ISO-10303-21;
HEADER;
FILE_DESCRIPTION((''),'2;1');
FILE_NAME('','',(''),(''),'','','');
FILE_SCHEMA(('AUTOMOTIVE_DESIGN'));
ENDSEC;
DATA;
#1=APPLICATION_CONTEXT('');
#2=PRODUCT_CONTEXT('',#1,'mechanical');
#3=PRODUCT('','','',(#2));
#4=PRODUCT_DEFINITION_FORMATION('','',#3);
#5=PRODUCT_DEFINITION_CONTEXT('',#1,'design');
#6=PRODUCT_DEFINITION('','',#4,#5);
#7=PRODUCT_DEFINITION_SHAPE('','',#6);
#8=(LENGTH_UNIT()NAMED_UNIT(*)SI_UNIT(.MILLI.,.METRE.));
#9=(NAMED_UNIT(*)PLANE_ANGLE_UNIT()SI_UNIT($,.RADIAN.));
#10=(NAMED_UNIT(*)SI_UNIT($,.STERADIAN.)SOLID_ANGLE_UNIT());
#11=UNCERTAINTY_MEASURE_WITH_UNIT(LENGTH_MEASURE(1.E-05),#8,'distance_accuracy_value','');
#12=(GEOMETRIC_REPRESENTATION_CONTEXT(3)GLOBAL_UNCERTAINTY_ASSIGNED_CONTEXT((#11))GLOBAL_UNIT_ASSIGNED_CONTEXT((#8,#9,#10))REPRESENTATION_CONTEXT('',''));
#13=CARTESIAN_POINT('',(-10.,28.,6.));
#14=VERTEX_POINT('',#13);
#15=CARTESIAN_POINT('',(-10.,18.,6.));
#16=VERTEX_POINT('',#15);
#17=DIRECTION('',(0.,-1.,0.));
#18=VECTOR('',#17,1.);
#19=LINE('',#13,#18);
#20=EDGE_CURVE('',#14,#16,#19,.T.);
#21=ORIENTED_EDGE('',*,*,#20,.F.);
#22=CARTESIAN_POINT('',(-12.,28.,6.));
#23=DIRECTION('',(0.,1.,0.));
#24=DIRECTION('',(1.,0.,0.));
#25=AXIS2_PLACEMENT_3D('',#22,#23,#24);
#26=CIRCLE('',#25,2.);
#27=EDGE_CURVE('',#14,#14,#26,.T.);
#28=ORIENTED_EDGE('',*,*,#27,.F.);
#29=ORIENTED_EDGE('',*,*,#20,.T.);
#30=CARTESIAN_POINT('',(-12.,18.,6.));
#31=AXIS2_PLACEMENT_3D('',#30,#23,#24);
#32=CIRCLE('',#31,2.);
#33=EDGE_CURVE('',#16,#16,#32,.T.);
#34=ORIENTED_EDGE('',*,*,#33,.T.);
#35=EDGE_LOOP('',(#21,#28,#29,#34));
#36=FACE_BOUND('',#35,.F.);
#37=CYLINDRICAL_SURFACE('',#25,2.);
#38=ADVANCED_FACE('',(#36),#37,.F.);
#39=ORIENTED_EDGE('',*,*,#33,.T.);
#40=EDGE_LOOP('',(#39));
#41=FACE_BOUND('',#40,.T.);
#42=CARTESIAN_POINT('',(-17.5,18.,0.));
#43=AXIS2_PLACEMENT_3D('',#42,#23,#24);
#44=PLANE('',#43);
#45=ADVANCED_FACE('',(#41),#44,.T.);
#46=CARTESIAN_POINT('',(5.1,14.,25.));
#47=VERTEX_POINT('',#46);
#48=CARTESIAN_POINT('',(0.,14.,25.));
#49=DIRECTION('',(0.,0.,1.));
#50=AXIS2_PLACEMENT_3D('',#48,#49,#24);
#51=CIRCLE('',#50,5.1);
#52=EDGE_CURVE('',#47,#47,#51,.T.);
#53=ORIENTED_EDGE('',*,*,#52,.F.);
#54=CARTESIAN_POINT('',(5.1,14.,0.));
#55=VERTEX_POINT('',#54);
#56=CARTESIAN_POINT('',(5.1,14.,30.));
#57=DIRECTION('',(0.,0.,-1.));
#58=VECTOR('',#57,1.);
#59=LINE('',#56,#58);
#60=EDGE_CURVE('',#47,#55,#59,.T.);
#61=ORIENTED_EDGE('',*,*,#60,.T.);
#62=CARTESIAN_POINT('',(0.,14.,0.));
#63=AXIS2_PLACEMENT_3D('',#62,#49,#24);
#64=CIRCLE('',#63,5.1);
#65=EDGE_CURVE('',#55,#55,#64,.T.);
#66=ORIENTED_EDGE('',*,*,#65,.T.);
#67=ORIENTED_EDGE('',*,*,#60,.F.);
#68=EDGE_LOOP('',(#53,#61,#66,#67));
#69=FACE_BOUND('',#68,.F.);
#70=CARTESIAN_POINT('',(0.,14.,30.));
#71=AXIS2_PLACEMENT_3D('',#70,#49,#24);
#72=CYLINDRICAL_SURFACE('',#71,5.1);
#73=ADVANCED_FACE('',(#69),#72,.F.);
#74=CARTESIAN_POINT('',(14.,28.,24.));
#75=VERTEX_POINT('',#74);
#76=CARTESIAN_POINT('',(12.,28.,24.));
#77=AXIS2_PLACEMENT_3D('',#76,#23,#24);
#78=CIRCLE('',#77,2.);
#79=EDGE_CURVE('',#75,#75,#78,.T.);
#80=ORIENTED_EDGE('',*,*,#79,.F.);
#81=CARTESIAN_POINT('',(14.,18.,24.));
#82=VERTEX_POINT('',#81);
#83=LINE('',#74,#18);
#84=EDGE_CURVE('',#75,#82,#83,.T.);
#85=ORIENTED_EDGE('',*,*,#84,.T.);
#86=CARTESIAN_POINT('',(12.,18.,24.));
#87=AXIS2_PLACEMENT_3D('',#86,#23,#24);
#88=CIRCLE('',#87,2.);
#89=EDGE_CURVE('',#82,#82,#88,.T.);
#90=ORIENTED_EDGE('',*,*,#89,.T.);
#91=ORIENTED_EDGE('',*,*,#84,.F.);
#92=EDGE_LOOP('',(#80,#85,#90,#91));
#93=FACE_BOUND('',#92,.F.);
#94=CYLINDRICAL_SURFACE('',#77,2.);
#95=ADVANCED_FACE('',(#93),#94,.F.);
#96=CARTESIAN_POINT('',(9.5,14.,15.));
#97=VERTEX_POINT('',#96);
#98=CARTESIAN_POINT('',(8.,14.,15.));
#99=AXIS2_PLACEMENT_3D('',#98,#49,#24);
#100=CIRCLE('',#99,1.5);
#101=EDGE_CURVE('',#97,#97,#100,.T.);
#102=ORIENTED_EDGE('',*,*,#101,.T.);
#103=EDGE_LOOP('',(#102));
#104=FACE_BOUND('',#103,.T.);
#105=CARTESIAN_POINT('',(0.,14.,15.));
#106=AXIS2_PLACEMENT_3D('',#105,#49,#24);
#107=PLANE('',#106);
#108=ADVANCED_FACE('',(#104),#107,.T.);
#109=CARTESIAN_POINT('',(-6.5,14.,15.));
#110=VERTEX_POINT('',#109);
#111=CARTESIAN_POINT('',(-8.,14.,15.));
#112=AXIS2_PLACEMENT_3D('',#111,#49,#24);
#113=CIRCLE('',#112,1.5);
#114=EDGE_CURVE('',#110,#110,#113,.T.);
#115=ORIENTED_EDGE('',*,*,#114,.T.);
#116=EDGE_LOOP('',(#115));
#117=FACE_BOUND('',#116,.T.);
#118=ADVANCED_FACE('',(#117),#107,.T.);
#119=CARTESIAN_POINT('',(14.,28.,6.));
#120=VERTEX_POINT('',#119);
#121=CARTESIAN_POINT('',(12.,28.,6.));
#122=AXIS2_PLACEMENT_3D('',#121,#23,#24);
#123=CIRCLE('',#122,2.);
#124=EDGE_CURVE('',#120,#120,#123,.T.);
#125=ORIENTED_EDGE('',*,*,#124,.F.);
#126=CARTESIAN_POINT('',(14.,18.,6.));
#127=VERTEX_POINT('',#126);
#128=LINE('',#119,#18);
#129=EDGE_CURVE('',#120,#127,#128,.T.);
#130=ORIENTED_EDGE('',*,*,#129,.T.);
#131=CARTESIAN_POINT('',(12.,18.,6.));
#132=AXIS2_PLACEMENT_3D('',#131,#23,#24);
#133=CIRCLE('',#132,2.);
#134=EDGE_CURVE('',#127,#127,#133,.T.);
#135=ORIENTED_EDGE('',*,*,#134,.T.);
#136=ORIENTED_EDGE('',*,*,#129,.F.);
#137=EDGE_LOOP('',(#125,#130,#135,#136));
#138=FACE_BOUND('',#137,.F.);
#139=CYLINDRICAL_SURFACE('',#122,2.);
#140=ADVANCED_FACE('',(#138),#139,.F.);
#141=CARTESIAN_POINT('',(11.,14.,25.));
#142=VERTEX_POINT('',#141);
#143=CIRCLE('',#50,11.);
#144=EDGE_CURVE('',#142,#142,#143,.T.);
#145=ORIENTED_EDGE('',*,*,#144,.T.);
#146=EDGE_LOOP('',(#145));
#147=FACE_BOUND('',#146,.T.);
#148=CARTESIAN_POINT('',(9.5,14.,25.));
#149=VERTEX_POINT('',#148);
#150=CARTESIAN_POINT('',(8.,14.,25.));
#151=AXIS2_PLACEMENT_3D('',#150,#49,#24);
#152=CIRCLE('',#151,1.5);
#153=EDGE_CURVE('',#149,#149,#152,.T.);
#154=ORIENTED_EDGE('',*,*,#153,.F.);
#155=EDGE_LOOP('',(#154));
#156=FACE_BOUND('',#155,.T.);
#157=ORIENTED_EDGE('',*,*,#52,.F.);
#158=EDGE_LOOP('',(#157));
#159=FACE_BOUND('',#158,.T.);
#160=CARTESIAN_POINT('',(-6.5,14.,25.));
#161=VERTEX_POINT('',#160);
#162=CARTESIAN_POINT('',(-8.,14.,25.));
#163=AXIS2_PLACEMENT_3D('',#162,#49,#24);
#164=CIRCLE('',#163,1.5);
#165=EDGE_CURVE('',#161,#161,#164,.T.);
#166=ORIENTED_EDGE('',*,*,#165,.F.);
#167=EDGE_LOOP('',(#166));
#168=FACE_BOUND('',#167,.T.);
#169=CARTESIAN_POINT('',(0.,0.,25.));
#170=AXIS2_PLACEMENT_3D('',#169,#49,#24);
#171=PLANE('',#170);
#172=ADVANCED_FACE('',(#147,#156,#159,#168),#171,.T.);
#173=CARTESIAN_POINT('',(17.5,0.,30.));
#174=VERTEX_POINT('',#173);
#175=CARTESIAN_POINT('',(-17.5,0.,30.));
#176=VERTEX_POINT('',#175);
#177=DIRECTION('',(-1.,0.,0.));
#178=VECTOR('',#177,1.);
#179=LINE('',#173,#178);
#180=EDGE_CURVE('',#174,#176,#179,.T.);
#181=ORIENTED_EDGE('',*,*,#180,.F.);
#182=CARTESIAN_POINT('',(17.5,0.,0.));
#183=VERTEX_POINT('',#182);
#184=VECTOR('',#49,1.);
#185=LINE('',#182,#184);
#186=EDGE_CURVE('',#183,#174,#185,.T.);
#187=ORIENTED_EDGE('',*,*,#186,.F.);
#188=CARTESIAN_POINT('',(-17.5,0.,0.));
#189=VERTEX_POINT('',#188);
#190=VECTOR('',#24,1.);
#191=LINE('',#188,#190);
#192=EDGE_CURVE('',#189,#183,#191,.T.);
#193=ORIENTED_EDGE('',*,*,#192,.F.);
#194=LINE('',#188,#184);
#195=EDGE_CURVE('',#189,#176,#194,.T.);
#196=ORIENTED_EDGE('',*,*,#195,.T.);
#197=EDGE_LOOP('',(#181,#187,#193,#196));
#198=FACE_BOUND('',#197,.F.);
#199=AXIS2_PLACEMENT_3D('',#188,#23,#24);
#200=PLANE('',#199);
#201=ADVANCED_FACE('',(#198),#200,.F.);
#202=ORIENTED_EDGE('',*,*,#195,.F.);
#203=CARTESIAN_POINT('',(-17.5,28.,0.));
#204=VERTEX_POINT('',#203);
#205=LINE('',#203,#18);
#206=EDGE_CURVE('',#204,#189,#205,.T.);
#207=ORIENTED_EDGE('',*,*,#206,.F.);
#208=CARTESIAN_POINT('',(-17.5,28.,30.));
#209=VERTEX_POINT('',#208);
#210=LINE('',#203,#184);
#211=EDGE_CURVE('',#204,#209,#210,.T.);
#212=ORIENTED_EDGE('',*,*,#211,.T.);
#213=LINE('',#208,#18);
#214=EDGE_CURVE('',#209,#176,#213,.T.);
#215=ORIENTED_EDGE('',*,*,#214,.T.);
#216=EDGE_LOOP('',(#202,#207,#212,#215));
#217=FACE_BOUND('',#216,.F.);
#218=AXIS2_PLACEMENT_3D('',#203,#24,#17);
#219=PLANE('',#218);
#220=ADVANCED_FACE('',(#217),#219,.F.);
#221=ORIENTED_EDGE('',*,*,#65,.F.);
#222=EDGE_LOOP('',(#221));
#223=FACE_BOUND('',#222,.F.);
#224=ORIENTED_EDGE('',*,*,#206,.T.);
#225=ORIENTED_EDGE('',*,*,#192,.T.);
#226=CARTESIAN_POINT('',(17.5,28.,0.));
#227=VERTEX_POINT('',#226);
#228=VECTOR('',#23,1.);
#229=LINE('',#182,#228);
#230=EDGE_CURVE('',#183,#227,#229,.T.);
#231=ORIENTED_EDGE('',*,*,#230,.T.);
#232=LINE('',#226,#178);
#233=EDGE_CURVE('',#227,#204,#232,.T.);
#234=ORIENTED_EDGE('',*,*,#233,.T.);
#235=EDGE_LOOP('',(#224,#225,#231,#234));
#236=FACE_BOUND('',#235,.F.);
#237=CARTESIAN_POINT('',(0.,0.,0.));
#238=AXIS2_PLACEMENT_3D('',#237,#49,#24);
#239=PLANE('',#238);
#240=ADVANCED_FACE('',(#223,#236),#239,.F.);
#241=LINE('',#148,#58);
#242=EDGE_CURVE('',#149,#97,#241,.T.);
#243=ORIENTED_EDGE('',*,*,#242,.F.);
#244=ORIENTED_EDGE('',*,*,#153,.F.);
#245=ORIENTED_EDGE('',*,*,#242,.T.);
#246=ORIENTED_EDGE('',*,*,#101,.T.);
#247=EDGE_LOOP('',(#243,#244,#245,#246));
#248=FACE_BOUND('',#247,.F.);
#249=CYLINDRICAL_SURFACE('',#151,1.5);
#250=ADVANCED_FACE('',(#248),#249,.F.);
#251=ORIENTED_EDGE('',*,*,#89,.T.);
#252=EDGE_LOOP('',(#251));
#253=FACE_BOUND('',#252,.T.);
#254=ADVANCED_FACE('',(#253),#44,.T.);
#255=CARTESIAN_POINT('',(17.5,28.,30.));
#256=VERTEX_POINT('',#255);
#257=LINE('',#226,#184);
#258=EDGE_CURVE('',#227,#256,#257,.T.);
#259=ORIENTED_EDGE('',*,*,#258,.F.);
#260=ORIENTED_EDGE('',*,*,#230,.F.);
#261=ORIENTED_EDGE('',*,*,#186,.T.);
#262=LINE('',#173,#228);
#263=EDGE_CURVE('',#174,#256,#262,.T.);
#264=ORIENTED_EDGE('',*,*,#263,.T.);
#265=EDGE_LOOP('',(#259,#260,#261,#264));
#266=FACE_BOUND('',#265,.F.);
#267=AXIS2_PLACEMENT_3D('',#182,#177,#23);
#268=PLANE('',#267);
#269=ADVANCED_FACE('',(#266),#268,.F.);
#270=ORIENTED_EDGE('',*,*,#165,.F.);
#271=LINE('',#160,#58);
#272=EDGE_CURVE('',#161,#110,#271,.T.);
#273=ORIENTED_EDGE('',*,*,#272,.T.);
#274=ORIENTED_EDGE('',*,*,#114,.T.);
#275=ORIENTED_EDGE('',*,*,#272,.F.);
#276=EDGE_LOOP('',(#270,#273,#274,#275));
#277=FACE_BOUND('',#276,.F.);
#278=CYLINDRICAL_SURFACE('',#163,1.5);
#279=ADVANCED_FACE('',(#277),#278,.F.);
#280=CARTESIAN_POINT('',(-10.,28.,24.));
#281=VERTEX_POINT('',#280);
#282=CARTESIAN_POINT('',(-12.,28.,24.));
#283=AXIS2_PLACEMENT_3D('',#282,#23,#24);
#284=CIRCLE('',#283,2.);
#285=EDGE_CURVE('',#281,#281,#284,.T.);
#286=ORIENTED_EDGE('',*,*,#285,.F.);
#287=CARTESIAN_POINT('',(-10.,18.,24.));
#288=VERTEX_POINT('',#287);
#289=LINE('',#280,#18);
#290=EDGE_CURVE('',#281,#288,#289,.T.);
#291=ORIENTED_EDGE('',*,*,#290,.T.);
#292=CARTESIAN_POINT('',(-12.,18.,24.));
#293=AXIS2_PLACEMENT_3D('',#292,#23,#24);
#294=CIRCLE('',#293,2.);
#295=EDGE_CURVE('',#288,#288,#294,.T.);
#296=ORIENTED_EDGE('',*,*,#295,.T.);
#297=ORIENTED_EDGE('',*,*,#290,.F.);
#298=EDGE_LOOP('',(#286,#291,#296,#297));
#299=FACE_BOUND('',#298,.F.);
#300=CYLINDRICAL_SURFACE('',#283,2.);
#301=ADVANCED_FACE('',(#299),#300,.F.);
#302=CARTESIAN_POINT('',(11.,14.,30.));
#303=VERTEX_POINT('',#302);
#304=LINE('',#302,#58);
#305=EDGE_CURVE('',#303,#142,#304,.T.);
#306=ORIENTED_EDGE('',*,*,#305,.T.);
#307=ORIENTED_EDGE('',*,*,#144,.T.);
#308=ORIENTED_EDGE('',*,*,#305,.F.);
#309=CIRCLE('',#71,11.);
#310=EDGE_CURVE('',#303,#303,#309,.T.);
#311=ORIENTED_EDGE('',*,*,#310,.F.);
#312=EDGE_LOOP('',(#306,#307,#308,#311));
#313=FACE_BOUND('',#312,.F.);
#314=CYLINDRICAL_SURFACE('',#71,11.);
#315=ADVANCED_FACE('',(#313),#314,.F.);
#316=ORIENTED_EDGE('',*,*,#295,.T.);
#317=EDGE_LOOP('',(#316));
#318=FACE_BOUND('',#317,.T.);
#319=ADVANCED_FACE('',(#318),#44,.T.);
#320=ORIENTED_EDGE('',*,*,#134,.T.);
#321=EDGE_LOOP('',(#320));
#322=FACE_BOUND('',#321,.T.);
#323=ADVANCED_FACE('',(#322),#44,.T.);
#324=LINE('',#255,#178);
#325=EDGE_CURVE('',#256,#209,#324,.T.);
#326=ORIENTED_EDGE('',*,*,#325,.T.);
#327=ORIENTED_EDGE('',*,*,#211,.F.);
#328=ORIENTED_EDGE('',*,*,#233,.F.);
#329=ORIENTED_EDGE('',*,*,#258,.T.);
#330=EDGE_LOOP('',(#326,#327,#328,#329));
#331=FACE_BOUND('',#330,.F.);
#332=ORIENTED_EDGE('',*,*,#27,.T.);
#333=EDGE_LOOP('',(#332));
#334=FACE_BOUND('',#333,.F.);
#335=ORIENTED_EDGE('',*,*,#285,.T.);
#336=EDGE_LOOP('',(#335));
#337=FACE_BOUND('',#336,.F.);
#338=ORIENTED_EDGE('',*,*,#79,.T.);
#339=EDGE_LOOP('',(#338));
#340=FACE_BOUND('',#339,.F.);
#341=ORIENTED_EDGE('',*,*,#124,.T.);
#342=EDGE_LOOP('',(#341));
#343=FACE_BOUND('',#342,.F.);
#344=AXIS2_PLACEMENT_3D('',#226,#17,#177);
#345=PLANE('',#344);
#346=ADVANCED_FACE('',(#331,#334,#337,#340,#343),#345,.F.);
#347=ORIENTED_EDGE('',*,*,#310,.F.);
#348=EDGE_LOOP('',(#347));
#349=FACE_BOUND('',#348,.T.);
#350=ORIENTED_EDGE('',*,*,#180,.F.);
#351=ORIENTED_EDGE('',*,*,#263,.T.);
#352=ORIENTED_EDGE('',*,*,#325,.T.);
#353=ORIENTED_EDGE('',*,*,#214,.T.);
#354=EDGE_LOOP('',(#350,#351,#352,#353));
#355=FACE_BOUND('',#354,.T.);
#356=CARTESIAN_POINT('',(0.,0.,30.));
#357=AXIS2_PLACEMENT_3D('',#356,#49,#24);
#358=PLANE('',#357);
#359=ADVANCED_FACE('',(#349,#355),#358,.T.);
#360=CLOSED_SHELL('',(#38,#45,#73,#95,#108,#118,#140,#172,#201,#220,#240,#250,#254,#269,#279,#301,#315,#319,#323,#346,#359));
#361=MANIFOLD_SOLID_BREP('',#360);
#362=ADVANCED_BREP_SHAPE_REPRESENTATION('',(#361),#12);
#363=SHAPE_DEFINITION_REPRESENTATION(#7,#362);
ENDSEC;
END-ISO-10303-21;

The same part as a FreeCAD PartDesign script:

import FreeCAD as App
import Part
import Sketcher

doc = App.newDocument("Part")
params = doc.addObject("Spreadsheet::Sheet", "Params")
for row, (alias, value) in enumerate([
    ("sketch1_width", "35 mm"),
    ("sketch1_height", "28 mm"),
    ("pad1_length", "30 mm"),
    ("sketch2_diameter", "10.2 mm"),
    ("pocket1_length", "30 mm"),
    ("sketch3_diameter", "4 mm"),
    ("pocket2_length", "10 mm"),
    ("sketch4_diameter", "22 mm"),
    ("sketch4_diameter2", "10.2 mm"),
    ("pocket3_length", "5 mm"),
    ("sketch5_diameter", "3 mm"),
    ("pocket4_length", "10 mm"),
], start=1):
    params.set(f"A{row}", alias)
    params.set(f"B{row}", "=" + value)
    params.setAlias(f"B{row}", alias)

body = doc.addObject("PartDesign::Body", "Body")

# Sketch on XY plane
sketch1 = body.newObject("Sketcher::SketchObject", "Sketch")
sketch1.AttachmentSupport = (doc.getObject("XY_Plane"), [""])
sketch1.MapMode = "FlatFace"
sketch1.addGeometry([
    Part.LineSegment(App.Vector(-18, 0, 0), App.Vector(18, 0, 0)),
    Part.LineSegment(App.Vector(18, 0, 0), App.Vector(18, 28, 0)),
    Part.LineSegment(App.Vector(18, 28, 0), App.Vector(-18, 28, 0)),
    Part.LineSegment(App.Vector(-18, 28, 0), App.Vector(-18, 0, 0)),
], False)
sketch1.addConstraint([
    Sketcher.Constraint("Coincident", 0, 2, 1, 1),
    Sketcher.Constraint("Coincident", 1, 2, 2, 1),
    Sketcher.Constraint("Coincident", 2, 2, 3, 1),
    Sketcher.Constraint("Coincident", 3, 2, 0, 1),
    Sketcher.Constraint("Horizontal", 0),
    Sketcher.Constraint("Vertical", 1),
    Sketcher.Constraint("Horizontal", 2),
    Sketcher.Constraint("Vertical", 3),
    Sketcher.Constraint("Symmetric", 0, 2, 3, 2, -1, 1),
    Sketcher.Constraint("DistanceX", 0, 1, 0, 2, 35.0),
    Sketcher.Constraint("DistanceY", 1, 1, 1, 2, 28.0),
])
sketch1.setExpression("Constraints[9]", "Params.sketch1_width")
sketch1.setExpression("Constraints[10]", "Params.sketch1_height")
pad1 = body.newObject("PartDesign::Pad", "Pad")
pad1.Profile = sketch1
pad1.setExpression("Length", "Params.pad1_length")

# Sketch on XY plane
sketch2 = body.newObject("Sketcher::SketchObject", "Sketch001")
sketch2.AttachmentSupport = (doc.getObject("XY_Plane"), [""])
sketch2.MapMode = "FlatFace"
sketch2.AttachmentOffset = App.Placement(App.Vector(0, 0, 30), App.Rotation())
sketch2.addGeometry(Part.Circle(App.Vector(0, 14, 0), App.Vector(0, 0, 1), 5), False)
sketch2.addConstraint([
    Sketcher.Constraint("PointOnObject", 0, 3, -2),
    Sketcher.Constraint("Diameter", 0, 10.2),
    Sketcher.Constraint("DistanceY", -1, 1, 0, 3, 14.0),
])
sketch2.setExpression("Constraints[1]", "Params.sketch2_diameter")
pocket1 = body.newObject("PartDesign::Pocket", "Pocket")
pocket1.Profile = sketch2
pocket1.setExpression("Length", "Params.pocket1_length")

# Sketch on XZ plane
sketch3 = body.newObject("Sketcher::SketchObject", "Sketch002")
sketch3.AttachmentSupport = (doc.getObject("XZ_Plane"), [""])
sketch3.MapMode = "FlatFace"
sketch3.AttachmentOffset = App.Placement(App.Vector(0, 0, -28), App.Rotation())
sketch3.addGeometry([
    Part.Circle(App.Vector(12, 6, 0), App.Vector(0, 0, 1), 2),
    Part.Circle(App.Vector(-12, 6, 0), App.Vector(0, 0, 1), 2),
    Part.Circle(App.Vector(12, 24, 0), App.Vector(0, 0, 1), 2),
    Part.Circle(App.Vector(-12, 24, 0), App.Vector(0, 0, 1), 2),
], False)
sketch3.addConstraint([
    Sketcher.Constraint("Equal", 0, 1),
    Sketcher.Constraint("Equal", 1, 2),
    Sketcher.Constraint("Equal", 2, 3),
    Sketcher.Constraint("Symmetric", 0, 3, 1, 3, -2),
    Sketcher.Constraint("Symmetric", 2, 3, 3, 3, -2),
    Sketcher.Constraint("Vertical", 0, 3, 2, 3),
    Sketcher.Constraint("Diameter", 0, 4.0),
    Sketcher.Constraint("DistanceX", -1, 1, 0, 3, 12.0),
    Sketcher.Constraint("DistanceY", -1, 1, 0, 3, 6.0),
    Sketcher.Constraint("DistanceY", -1, 1, 2, 3, 24.0),
])
sketch3.setExpression("Constraints[6]", "Params.sketch3_diameter")
pocket2 = body.newObject("PartDesign::Pocket", "Pocket001")
pocket2.Profile = sketch3
pocket2.setExpression("Length", "Params.pocket2_length")
pocket2.Reversed = True

# Sketch on XY plane
sketch4 = body.newObject("Sketcher::SketchObject", "Sketch003")
sketch4.AttachmentSupport = (doc.getObject("XY_Plane"), [""])
sketch4.MapMode = "FlatFace"
sketch4.AttachmentOffset = App.Placement(App.Vector(0, 0, 30), App.Rotation())
sketch4.addGeometry([
    Part.Circle(App.Vector(0, 14, 0), App.Vector(0, 0, 1), 11),
    Part.Circle(App.Vector(0, 14, 0), App.Vector(0, 0, 1), 5),
], False)
sketch4.addConstraint([
    Sketcher.Constraint("Coincident", 1, 3, 0, 3),
    Sketcher.Constraint("PointOnObject", 0, 3, -2),
    Sketcher.Constraint("Diameter", 0, 22.0),
    Sketcher.Constraint("Diameter", 1, 10.2),
    Sketcher.Constraint("DistanceY", -1, 1, 0, 3, 14.0),
])
sketch4.setExpression("Constraints[2]", "Params.sketch4_diameter")
sketch4.setExpression("Constraints[3]", "Params.sketch4_diameter2")
pocket3 = body.newObject("PartDesign::Pocket", "Pocket002")
pocket3.Profile = sketch4
pocket3.setExpression("Length", "Params.pocket3_length")

# Sketch on XY plane
sketch5 = body.newObject("Sketcher::SketchObject", "Sketch004")
sketch5.AttachmentSupport = (doc.getObject("XY_Plane"), [""])
sketch5.MapMode = "FlatFace"
sketch5.AttachmentOffset = App.Placement(App.Vector(0, 0, 25), App.Rotation())
sketch5.addGeometry([
    Part.Circle(App.Vector(-8, 14, 0), App.Vector(0, 0, 1), 1.5),
    Part.Circle(App.Vector(8, 14, 0), App.Vector(0, 0, 1), 1.5),
], False)
sketch5.addConstraint([
    Sketcher.Constraint("Equal", 0, 1),
    Sketcher.Constraint("Symmetric", 0, 3, 1, 3, -2),
    Sketcher.Constraint("Diameter", 0, 3.0),
    Sketcher.Constraint("DistanceX", 0, 3, -1, 1, 8.0),
    Sketcher.Constraint("DistanceY", -1, 1, 0, 3, 14.0),
])
sketch5.setExpression("Constraints[2]", "Params.sketch5_diameter")
pocket4 = body.newObject("PartDesign::Pocket", "Pocket003")
pocket4.Profile = sketch5
pocket4.setExpression("Length", "Params.pocket4_length")

doc.recompute()
